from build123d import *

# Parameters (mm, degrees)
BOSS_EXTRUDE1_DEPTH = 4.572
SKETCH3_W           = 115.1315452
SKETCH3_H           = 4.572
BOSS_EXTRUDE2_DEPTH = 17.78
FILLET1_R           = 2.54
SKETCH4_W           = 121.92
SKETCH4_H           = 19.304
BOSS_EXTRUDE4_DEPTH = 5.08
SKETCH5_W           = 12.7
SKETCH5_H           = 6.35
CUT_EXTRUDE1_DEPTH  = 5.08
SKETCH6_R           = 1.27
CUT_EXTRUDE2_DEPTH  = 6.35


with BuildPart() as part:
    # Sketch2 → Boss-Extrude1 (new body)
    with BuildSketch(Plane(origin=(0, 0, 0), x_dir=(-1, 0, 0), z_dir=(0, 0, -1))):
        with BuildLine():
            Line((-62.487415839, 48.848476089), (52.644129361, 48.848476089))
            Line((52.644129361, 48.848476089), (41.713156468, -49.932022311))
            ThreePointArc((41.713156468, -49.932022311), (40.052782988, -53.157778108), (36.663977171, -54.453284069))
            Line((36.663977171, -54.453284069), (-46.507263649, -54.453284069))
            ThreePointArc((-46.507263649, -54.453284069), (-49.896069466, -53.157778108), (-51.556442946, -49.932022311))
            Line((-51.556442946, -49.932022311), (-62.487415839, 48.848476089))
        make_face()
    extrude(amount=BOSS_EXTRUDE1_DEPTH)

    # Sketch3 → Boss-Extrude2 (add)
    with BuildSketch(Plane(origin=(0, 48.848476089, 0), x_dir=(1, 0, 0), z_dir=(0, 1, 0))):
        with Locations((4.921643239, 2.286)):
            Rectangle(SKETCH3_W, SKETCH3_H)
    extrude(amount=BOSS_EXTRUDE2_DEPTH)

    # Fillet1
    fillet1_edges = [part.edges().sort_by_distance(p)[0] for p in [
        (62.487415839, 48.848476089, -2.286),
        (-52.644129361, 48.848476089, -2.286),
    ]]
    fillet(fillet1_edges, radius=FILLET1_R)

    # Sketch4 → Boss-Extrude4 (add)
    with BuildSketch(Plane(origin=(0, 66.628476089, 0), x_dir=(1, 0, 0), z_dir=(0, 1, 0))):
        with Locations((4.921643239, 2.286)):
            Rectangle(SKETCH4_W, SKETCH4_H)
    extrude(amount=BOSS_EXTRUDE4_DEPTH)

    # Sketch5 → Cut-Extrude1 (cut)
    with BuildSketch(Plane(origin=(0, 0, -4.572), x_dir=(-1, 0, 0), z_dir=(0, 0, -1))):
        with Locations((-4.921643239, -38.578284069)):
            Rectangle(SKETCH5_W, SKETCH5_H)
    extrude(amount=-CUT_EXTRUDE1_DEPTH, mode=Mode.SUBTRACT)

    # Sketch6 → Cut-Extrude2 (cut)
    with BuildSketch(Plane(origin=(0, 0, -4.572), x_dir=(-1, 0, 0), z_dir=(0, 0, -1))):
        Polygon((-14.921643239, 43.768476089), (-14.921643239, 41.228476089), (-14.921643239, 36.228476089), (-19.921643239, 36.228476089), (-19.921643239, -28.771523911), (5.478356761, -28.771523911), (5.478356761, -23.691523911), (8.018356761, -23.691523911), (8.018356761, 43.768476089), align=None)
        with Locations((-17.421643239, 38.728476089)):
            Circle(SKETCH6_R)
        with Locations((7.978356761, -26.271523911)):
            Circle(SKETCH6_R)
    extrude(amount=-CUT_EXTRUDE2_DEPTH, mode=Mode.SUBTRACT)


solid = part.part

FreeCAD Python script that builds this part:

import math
import FreeCAD as App
import Part
import Sketcher
Q = App.Units.Quantity


def edges_at(feature, points):
    """Names of the edges that pass closest to the given points."""
    edges = feature.Shape.Edges
    near = lambda p: min(range(len(edges)), key=lambda i: edges[i].distToShape(Part.Vertex(*p))[0])
    return sorted({f"Edge{near(p) + 1}" for p in points})

doc = App.newDocument("Part")
body = doc.addObject("PartDesign::Body", "Body")

# Sketch on XY plane
sketch1 = body.newObject("Sketcher::SketchObject", "Sketch")
sketch1.AttachmentSupport = (doc.getObject("XY_Plane"), [""])
sketch1.MapMode = "FlatFace"
sketch1.addGeometry(Part.LineSegment(App.Vector(-52.644129, 48.848476, 0), App.Vector(62.487416, 48.848476, 0)), False)
sketch1.addGeometry(Part.LineSegment(App.Vector(62.487416, 48.848476, 0), App.Vector(51.556443, -49.932022, 0)), False)
sketch1.addGeometry(Part.ArcOfCircle(Part.Circle(App.Vector(46.507264, -49.373284, 0), App.Vector(0, 0, 1), 5.08), math.radians(-90), math.radians(-6.314615)), False)
sketch1.addGeometry(Part.LineSegment(App.Vector(46.507264, -54.453284, 0), App.Vector(-36.663977, -54.453284, 0)), False)
sketch1.addGeometry(Part.ArcOfCircle(Part.Circle(App.Vector(-36.663977, -49.373284, 0), App.Vector(0, 0, 1), 5.08), math.radians(-173.685385), math.radians(-90)), False)
sketch1.addGeometry(Part.LineSegment(App.Vector(-41.713156, -49.932022, 0), App.Vector(-52.644129, 48.848476, 0)), False)
sketch1.addConstraint(Sketcher.Constraint("Coincident", 0, 2, 1, 1))
sketch1.addConstraint(Sketcher.Constraint("Coincident", 1, 2, 2, 2))
sketch1.addConstraint(Sketcher.Constraint("Coincident", 2, 1, 3, 1))
sketch1.addConstraint(Sketcher.Constraint("Coincident", 3, 2, 4, 2))
sketch1.addConstraint(Sketcher.Constraint("Coincident", 4, 1, 5, 1))
sketch1.addConstraint(Sketcher.Constraint("Coincident", 5, 2, 0, 1))
sketch1.addConstraint(Sketcher.Constraint("Horizontal", 0))
sketch1.addConstraint(Sketcher.Constraint("Horizontal", 3))
sketch1.addConstraint(Sketcher.Constraint("Radius", 2, Q("0.2 in")))
sketch1.addConstraint(Sketcher.Constraint("Radius", 4, Q("0.2 in")))
sketch1.addConstraint(Sketcher.Constraint("DistanceX", 3, 2, 3, 1, Q("83.171241 mm")))
sketch1.addConstraint(Sketcher.Constraint("DistanceY", 1, 2, 0, 2, Q("98.780498 mm")))
sketch1.addConstraint(Sketcher.Constraint("DistanceX", 4, 1, 1, 2, Q("93.269599 mm")))
sketch1.addConstraint(Sketcher.Constraint("DistanceY", 4, 1, 5, 2, Q("98.780498 mm")))
sketch1.addConstraint(Sketcher.Constraint("DistanceX", 0, 1, 0, 2, Q("115.131545 mm")))
sketch1.addConstraint(Sketcher.Constraint("DistanceX", 5, 2, -1, 1, Q("52.644129 mm")))
sketch1.addConstraint(Sketcher.Constraint("DistanceX", 4, 3, 2, 3, Q("83.171241 mm")))
sketch1.addConstraint(Sketcher.Constraint("DistanceX", 2, 1, 1, 2, Q("5.049179 mm")))
sketch1.addConstraint(Sketcher.Constraint("Distance", 1, Q("99.383465 mm")))
sketch1.addConstraint(Sketcher.Constraint("DistanceY", 2, 3, -1, 1, Q("49.373284 mm")))
pad1 = body.newObject("PartDesign::Pad", "Pad")
pad1.Profile = sketch1
pad1.Length = Q("0.18 in")
pad1.Reversed = True

# Sketch on XZ plane
sketch2 = body.newObject("Sketcher::SketchObject", "Sketch001")
sketch2.AttachmentSupport = (doc.getObject("XZ_Plane"), [""])
sketch2.MapMode = "FlatFace"
sketch2.AttachmentOffset = App.Placement(App.Vector(0, 0, -48.848476), App.Rotation())
sketch2.addGeometry(Part.LineSegment(App.Vector(-52.6, -4.6, 0), App.Vector(-52.6, 0, 0)), False)
sketch2.addGeometry(Part.LineSegment(App.Vector(-52.6, 0, 0), App.Vector(62.5, 0, 0)), False)
sketch2.addGeometry(Part.LineSegment(App.Vector(62.5, 0, 0), App.Vector(62.5, -4.6, 0)), False)
sketch2.addGeometry(Part.LineSegment(App.Vector(62.5, -4.6, 0), App.Vector(-52.6, -4.6, 0)), False)
sketch2.addConstraint(Sketcher.Constraint("Coincident", 0, 2, 1, 1))
sketch2.addConstraint(Sketcher.Constraint("Coincident", 1, 2, 2, 1))
sketch2.addConstraint(Sketcher.Constraint("Coincident", 2, 2, 3, 1))
sketch2.addConstraint(Sketcher.Constraint("Coincident", 3, 2, 0, 1))
sketch2.addConstraint(Sketcher.Constraint("Vertical", 0))
sketch2.addConstraint(Sketcher.Constraint("Horizontal", 1))
sketch2.addConstraint(Sketcher.Constraint("Vertical", 2))
sketch2.addConstraint(Sketcher.Constraint("Horizontal", 3))
sketch2.addConstraint(Sketcher.Constraint("PointOnObject", 0, 2, -1))
sketch2.addConstraint(Sketcher.Constraint("DistanceY", 0, 1, 0, 2, Q("0.18 in")))
sketch2.addConstraint(Sketcher.Constraint("DistanceX", 1, 1, 1, 2, Q("115.131545 mm")))
sketch2.addConstraint(Sketcher.Constraint("DistanceX", 0, 2, -1, 1, Q("52.644129 mm")))
pad2 = body.newObject("PartDesign::Pad", "Pad001")
pad2.Profile = sketch2
pad2.Length = Q("0.7 in")
pad2.Reversed = True
doc.recompute()

fillet = body.newObject("PartDesign::Fillet", "Fillet")
fillet.Base = (pad2, edges_at(pad2, [(62.487, 48.848, -2.286), (-52.644, 48.848, -2.286)]))
fillet.Radius = Q("0.1 in")

# Sketch on XZ plane
sketch3 = body.newObject("Sketcher::SketchObject", "Sketch002")
sketch3.AttachmentSupport = (doc.getObject("XZ_Plane"), [""])
sketch3.MapMode = "FlatFace"
sketch3.AttachmentOffset = App.Placement(App.Vector(0, 0, -66.628476), App.Rotation())
sketch3.addGeometry(Part.LineSegment(App.Vector(-56, -12, 0), App.Vector(-56, 7, 0)), False)
sketch3.addGeometry(Part.LineSegment(App.Vector(-56, 7, 0), App.Vector(66, 7, 0)), False)
sketch3.addGeometry(Part.LineSegment(App.Vector(66, 7, 0), App.Vector(66, -12, 0)), False)
sketch3.addGeometry(Part.LineSegment(App.Vector(66, -12, 0), App.Vector(-56, -12, 0)), False)
sketch3.addConstraint(Sketcher.Constraint("Coincident", 0, 2, 1, 1))
sketch3.addConstraint(Sketcher.Constraint("Coincident", 1, 2, 2, 1))
sketch3.addConstraint(Sketcher.Constraint("Coincident", 2, 2, 3, 1))
sketch3.addConstraint(Sketcher.Constraint("Coincident", 3, 2, 0, 1))
sketch3.addConstraint(Sketcher.Constraint("Vertical", 0))
sketch3.addConstraint(Sketcher.Constraint("Horizontal", 1))
sketch3.addConstraint(Sketcher.Constraint("Vertical", 2))
sketch3.addConstraint(Sketcher.Constraint("Horizontal", 3))
sketch3.addConstraint(Sketcher.Constraint("DistanceX", 1, 1, 1, 2, Q("4.8 in")))
sketch3.addConstraint(Sketcher.Constraint("DistanceY", 0, 1, 0, 2, Q("0.76 in")))
sketch3.addConstraint(Sketcher.Constraint("DistanceY", -1, 1, 0, 2, Q("0.29 in")))
sketch3.addConstraint(Sketcher.Constraint("DistanceX", 0, 2, -1, 1, Q("56.038357 mm")))
pad3 = body.newObject("PartDesign::Pad", "Pad002")
pad3.Profile = sketch3
pad3.Length = Q("0.2 in")
pad3.Reversed = True

# Sketch on XY plane
sketch4 = body.newObject("Sketcher::SketchObject", "Sketch003")
sketch4.AttachmentSupport = (doc.getObject("XY_Plane"), [""])
sketch4.MapMode = "FlatFace"
sketch4.AttachmentOffset = App.Placement(App.Vector(0, 0, -0.18 * 25.4), App.Rotation())
sketch4.addGeometry(Part.LineSegment(App.Vector(11, -35, 0), App.Vector(11, -42, 0)), False)
sketch4.addGeometry(Part.LineSegment(App.Vector(11, -42, 0), App.Vector(-1, -42, 0)), False)
sketch4.addGeometry(Part.LineSegment(App.Vector(-1, -42, 0), App.Vector(-1, -35, 0)), False)
sketch4.addGeometry(Part.LineSegment(App.Vector(-1, -35, 0), App.Vector(11, -35, 0)), False)
sketch4.addConstraint(Sketcher.Constraint("Coincident", 0, 2, 1, 1))
sketch4.addConstraint(Sketcher.Constraint("Coincident", 1, 2, 2, 1))
sketch4.addConstraint(Sketcher.Constraint("Coincident", 2, 2, 3, 1))
sketch4.addConstraint(Sketcher.Constraint("Coincident", 3, 2, 0, 1))
sketch4.addConstraint(Sketcher.Constraint("Vertical", 0))
sketch4.addConstraint(Sketcher.Constraint("Horizontal", 1))
sketch4.addConstraint(Sketcher.Constraint("Vertical", 2))
sketch4.addConstraint(Sketcher.Constraint("Horizontal", 3))
sketch4.addConstraint(Sketcher.Constraint("DistanceX", 1, 2, 1, 1, Q("0.5 in")))
sketch4.addConstraint(Sketcher.Constraint("DistanceY", 0, 2, 0, 1, Q("0.25 in")))
sketch4.addConstraint(Sketcher.Constraint("DistanceX", -1, 1, 0, 2, Q("11.271643 mm")))
sketch4.addConstraint(Sketcher.Constraint("DistanceY", 0, 2, -1, 1, Q("41.753284 mm")))
pocket1 = body.newObject("PartDesign::Pocket", "Pocket")
pocket1.Profile = sketch4
pocket1.Length = Q("0.2 in")
pocket1.Reversed = True

# Sketch on XY plane
sketch5 = body.newObject("Sketcher::SketchObject", "Sketch004")
sketch5.AttachmentSupport = (doc.getObject("XY_Plane"), [""])
sketch5.MapMode = "FlatFace"
sketch5.AttachmentOffset = App.Placement(App.Vector(0, 0, -0.18 * 25.4), App.Rotation())
sketch5.addGeometry(Part.LineSegment(App.Vector(14.9, 43.8, 0), App.Vector(14.9, 36.2, 0)), False)
sketch5.addGeometry(Part.LineSegment(App.Vector(14.9, 36.2, 0), App.Vector(19.9, 36.2, 0)), False)
sketch5.addGeometry(Part.LineSegment(App.Vector(19.9, 36.2, 0), App.Vector(19.9, -28.8, 0)), False)
sketch5.addGeometry(Part.LineSegment(App.Vector(19.9, -28.8, 0), App.Vector(-5.5, -28.8, 0)), False)
sketch5.addGeometry(Part.LineSegment(App.Vector(-5.5, -28.8, 0), App.Vector(-5.5, -23.7, 0)), False)
sketch5.addGeometry(Part.LineSegment(App.Vector(-5.5, -23.7, 0), App.Vector(-8, -23.7, 0)), False)
sketch5.addGeometry(Part.LineSegment(App.Vector(-8, -23.7, 0), App.Vector(-8, 43.8, 0)), False)
sketch5.addGeometry(Part.LineSegment(App.Vector(-8, 43.8, 0), App.Vector(14.9, 43.8, 0)), False)
sketch5.addGeometry(Part.Circle(App.Vector(17.4, 38.7, 0), App.Vector(0, 0, 1), 1.3), False)
sketch5.addGeometry(Part.Circle(App.Vector(-8, -26.3, 0), App.Vector(0, 0, 1), 1.3), False)
sketch5.addConstraint(Sketcher.Constraint("Coincident", 0, 2, 1, 1))
sketch5.addConstraint(Sketcher.Constraint("Coincident", 1, 2, 2, 1))
sketch5.addConstraint(Sketcher.Constraint("Coincident", 2, 2, 3, 1))
sketch5.addConstraint(Sketcher.Constraint("Coincident", 3, 2, 4, 1))
sketch5.addConstraint(Sketcher.Constraint("Coincident", 4, 2, 5, 1))
sketch5.addConstraint(Sketcher.Constraint("Coincident", 5, 2, 6, 1))
sketch5.addConstraint(Sketcher.Constraint("Coincident", 6, 2, 7, 1))
sketch5.addConstraint(Sketcher.Constraint("Coincident", 7, 2, 0, 1))
sketch5.addConstraint(Sketcher.Constraint("Vertical", 0))
sketch5.addConstraint(Sketcher.Constraint("Horizontal", 1))
sketch5.addConstraint(Sketcher.Constraint("Vertical", 2))
sketch5.addConstraint(Sketcher.Constraint("Horizontal", 3))
sketch5.addConstraint(Sketcher.Constraint("Vertical", 4))
sketch5.addConstraint(Sketcher.Constraint("Horizontal", 5))
sketch5.addConstraint(Sketcher.Constraint("Vertical", 6))
sketch5.addConstraint(Sketcher.Constraint("Horizontal", 7))
sketch5.addConstraint(Sketcher.Constraint("Equal", 8, 9))
sketch5.addConstraint(Sketcher.Constraint("Diameter", 8, Q("0.1 in")))
sketch5.addConstraint(Sketcher.Constraint("DistanceX", 3, 2, 3, 1, Q("1 in")))
sketch5.addConstraint(Sketcher.Constraint("DistanceX", 5, 2, 5, 1, Q("0.1 in")))
sketch5.addConstraint(Sketcher.Constraint("DistanceY", 4, 1, 4, 2, Q("0.2 in")))
sketch5.addConstraint(Sketcher.Constraint("DistanceX", 9, 3, 8, 3, Q("1 in")))
sketch5.addConstraint(Sketcher.Constraint("DistanceX", 1, 1, 1, 2, Q("5 mm")))
sketch5.addConstraint(Sketcher.Constraint("DistanceY", 0, 2, 0, 1, Q("7.54 mm")))
sketch5.addConstraint(Sketcher.Constraint("DistanceY", 2, 2, 2, 1, Q("65 mm")))
sketch5.addConstraint(Sketcher.Constraint("DistanceY", 9, 3, 8, 3, Q("65 mm")))
sketch5.addConstraint(Sketcher.Constraint("DistanceX", 0, 2, 8, 3, Q("2.5 mm")))
sketch5.addConstraint(Sketcher.Constraint("DistanceY", 0, 2, 8, 3, Q("2.5 mm")))
sketch5.addConstraint(Sketcher.Constraint("DistanceX", -1, 1, 8, 3, Q("17.421643 mm")))
sketch5.addConstraint(Sketcher.Constraint("DistanceY", -1, 1, 8, 3, Q("38.728476 mm")))
pocket2 = body.newObject("PartDesign::Pocket", "Pocket001")
pocket2.Profile = sketch5
pocket2.Length = Q("0.25 in")
pocket2.Reversed = True

doc.recompute()
